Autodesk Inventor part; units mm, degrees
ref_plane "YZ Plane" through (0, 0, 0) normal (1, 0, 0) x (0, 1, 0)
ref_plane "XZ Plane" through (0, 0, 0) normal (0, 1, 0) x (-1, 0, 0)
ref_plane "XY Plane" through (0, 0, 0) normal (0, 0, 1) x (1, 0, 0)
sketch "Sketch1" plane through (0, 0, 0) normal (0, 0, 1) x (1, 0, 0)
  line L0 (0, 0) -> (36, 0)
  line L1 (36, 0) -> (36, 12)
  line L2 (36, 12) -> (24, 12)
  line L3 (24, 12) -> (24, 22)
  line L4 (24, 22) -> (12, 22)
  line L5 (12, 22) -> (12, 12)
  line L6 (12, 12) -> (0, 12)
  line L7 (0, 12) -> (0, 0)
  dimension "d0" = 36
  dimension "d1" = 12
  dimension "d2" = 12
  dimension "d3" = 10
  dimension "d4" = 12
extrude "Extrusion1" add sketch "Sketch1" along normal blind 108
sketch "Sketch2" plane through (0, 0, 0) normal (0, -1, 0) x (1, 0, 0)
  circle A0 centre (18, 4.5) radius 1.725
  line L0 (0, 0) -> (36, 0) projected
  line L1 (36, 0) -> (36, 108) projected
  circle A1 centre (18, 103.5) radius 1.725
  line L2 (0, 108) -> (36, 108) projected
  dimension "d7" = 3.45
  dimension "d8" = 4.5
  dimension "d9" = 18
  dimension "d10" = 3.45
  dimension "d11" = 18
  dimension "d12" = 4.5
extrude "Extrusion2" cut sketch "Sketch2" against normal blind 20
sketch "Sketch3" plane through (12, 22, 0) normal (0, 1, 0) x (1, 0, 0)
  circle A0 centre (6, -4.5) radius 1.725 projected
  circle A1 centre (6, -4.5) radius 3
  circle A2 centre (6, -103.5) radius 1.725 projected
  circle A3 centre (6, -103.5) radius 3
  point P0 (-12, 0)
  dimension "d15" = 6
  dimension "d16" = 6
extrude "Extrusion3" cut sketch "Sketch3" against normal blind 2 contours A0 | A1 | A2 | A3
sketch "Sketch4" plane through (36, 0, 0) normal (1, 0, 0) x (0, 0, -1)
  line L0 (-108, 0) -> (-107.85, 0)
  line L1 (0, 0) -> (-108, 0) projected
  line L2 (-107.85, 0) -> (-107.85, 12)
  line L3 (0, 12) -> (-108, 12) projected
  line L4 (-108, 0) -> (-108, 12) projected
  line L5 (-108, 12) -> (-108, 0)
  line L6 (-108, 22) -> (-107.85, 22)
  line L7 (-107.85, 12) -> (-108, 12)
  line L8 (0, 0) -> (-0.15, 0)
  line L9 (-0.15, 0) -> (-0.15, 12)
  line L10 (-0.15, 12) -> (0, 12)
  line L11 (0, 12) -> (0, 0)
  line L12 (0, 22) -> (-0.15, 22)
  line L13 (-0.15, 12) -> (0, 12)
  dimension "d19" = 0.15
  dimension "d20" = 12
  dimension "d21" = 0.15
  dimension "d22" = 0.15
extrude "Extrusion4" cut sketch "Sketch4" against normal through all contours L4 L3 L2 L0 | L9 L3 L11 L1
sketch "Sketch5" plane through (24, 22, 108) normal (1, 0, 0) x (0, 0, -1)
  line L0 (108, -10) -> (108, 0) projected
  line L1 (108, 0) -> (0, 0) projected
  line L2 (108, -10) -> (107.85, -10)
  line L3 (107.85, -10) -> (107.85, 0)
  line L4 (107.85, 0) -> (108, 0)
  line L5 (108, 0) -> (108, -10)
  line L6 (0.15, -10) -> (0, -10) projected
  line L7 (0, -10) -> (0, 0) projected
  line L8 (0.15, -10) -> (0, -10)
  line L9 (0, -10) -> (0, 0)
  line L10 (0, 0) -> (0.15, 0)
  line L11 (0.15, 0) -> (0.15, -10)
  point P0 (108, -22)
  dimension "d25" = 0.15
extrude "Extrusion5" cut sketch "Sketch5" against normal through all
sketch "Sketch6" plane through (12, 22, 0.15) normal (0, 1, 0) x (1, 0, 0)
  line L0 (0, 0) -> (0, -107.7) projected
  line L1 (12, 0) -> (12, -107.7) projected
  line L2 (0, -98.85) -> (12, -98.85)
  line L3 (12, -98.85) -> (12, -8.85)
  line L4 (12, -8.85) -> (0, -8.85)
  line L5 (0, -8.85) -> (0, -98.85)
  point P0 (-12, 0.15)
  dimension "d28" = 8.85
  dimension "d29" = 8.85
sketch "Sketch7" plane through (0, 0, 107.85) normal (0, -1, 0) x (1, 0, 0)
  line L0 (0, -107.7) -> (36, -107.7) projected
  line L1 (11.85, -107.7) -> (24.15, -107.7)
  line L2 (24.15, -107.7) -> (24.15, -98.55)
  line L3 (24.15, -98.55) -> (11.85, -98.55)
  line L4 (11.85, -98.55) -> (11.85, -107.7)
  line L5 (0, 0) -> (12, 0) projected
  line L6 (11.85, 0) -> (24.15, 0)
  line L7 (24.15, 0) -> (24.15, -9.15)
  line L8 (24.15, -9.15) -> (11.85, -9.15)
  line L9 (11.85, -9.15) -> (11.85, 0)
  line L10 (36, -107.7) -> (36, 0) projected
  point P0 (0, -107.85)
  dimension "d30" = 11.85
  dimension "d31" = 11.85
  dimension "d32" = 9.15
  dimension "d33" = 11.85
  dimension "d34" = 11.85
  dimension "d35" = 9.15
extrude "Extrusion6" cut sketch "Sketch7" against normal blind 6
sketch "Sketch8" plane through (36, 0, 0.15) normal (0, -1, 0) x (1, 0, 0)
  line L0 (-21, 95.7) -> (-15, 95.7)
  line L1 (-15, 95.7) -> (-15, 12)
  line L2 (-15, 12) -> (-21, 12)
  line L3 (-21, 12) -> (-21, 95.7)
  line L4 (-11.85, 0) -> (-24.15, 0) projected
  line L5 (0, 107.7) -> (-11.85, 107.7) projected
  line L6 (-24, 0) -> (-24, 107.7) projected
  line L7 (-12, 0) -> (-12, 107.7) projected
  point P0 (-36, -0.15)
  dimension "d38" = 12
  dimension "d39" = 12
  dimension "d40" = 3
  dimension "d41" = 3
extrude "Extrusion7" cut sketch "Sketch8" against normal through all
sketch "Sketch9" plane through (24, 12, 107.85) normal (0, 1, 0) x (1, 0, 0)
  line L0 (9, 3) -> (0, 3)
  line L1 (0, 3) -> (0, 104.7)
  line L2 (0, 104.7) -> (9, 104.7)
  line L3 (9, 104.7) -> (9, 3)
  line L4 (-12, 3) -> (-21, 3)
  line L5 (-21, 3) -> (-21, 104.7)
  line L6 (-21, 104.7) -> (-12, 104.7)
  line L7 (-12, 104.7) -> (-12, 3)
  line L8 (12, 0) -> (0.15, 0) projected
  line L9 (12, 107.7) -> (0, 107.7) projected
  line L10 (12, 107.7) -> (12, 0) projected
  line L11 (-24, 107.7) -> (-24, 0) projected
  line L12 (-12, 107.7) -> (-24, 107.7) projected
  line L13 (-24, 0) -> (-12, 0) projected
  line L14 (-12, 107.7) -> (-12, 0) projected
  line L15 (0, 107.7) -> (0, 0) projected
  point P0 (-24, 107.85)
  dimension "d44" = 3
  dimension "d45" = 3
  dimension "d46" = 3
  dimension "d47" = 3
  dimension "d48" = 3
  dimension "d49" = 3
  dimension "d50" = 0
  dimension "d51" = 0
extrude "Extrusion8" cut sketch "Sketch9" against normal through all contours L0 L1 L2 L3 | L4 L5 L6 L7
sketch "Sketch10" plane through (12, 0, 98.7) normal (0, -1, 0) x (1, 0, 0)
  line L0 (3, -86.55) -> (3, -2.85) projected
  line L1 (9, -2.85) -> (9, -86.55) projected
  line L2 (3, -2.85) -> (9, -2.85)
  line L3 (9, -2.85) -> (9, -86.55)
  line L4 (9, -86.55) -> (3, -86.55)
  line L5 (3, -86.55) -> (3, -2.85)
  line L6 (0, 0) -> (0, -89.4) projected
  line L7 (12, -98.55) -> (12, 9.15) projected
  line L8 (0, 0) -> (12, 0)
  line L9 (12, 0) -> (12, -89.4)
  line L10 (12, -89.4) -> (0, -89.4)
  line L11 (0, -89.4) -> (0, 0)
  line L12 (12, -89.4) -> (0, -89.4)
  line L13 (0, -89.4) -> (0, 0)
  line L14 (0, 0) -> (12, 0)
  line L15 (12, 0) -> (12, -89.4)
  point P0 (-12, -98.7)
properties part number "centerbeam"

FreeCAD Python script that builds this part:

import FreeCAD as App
import Part
import Sketcher
from FreeCAD import Vector


def add_polygon(sketch, points):
    """Adds a closed chain of lines whose ends are joined by coincident constraints."""
    first, n = sketch.GeometryCount, len(points)
    for a, b in zip(points, points[1:] + points[:1]):
        sketch.addGeometry(Part.LineSegment(App.Vector(*a, 0), App.Vector(*b, 0)), False)
    for i in range(n):
        sketch.addConstraint(Sketcher.Constraint("Coincident", first + i, 2, first + (i + 1) % n, 1))

doc = App.newDocument("Part")
body = doc.addObject("PartDesign::Body", "Body")

# Sketch on XY plane
sketch1 = doc.addObject("Sketcher::SketchObject", "Sketch")
body.addObject(sketch1)
sketch1.AttachmentSupport = (doc.XY_Plane, [""])
sketch1.MapMode = "FlatFace"
add_polygon(sketch1, [(0, 12), (0, 0), (36, 0), (36, 12), (24, 12), (24, 22), (12, 22), (12, 12)])  # lines 0-7
sketch1.addConstraint(Sketcher.Constraint("Vertical", 0))
sketch1.addConstraint(Sketcher.Constraint("Horizontal", 1))
sketch1.addConstraint(Sketcher.Constraint("Vertical", 2))
sketch1.addConstraint(Sketcher.Constraint("Horizontal", 3))
sketch1.addConstraint(Sketcher.Constraint("Vertical", 4))
sketch1.addConstraint(Sketcher.Constraint("Horizontal", 5))
sketch1.addConstraint(Sketcher.Constraint("Vertical", 6))
sketch1.addConstraint(Sketcher.Constraint("Horizontal", 7))
sketch1.addConstraint(Sketcher.Constraint("Coincident", 0, 2, -1, 1))
sketch1.addConstraint(Sketcher.Constraint("Horizontal", 3, 2, 6, 2))
sketch1.addConstraint(Sketcher.Constraint("Equal", 3, 5))
sketch1.addConstraint(Sketcher.Constraint("Equal", 5, 7))
sketch1.addConstraint(Sketcher.Constraint("Equal", 7, 0))
sketch1.addConstraint(Sketcher.Constraint("DistanceX", 1, 1, 1, 2, 36.0))
sketch1.addConstraint(Sketcher.Constraint("DistanceY", 4, 1, 4, 2, 10.0))
pad1 = doc.addObject("PartDesign::Pad", "Pad")
body.addObject(pad1)
pad1.Profile = sketch1
pad1.Length = 108

# Sketch on XZ plane
sketch2 = doc.addObject("Sketcher::SketchObject", "Sketch001")
body.addObject(sketch2)
sketch2.AttachmentSupport = (doc.XZ_Plane, [""])
sketch2.MapMode = "FlatFace"
sketch2.addGeometry(Part.Circle(Vector(18, 4.5, 0), Vector(0, 0, 1), 1.725), False)
sketch2.addGeometry(Part.Circle(Vector(18, 103.5, 0), Vector(0, 0, 1), 1.725), False)
sketch2.addConstraint(Sketcher.Constraint("Equal", 0, 1))
sketch2.addConstraint(Sketcher.Constraint("Vertical", 0, 3, 1, 3))
sketch2.addConstraint(Sketcher.Constraint("Diameter", 0, 3.45))
sketch2.addConstraint(Sketcher.Constraint("DistanceX", -1, 1, 0, 3, 18.0))
sketch2.addConstraint(Sketcher.Constraint("DistanceY", -1, 1, 0, 3, 4.5))
sketch2.addConstraint(Sketcher.Constraint("DistanceY", 0, 3, 1, 3, 99.0))
pocket1 = doc.addObject("PartDesign::Pocket", "Pocket")
body.addObject(pocket1)
pocket1.Profile = sketch2
pocket1.Length = 20

# Sketch on XZ plane
sketch3 = doc.addObject("Sketcher::SketchObject", "Sketch002")
body.addObject(sketch3)
sketch3.AttachmentSupport = (doc.XZ_Plane, [""])
sketch3.MapMode = "FlatFace"
sketch3.AttachmentOffset = App.Placement(Vector(0, 0, -22), App.Rotation())
sketch3.addGeometry(Part.Circle(Vector(18, 4.5, 0), Vector(0, 0, 1), 3), False)
sketch3.addGeometry(Part.Circle(Vector(18, 103.5, 0), Vector(0, 0, 1), 3), False)
sketch3.addConstraint(Sketcher.Constraint("Equal", 0, 1))
sketch3.addConstraint(Sketcher.Constraint("Vertical", 0, 3, 1, 3))
sketch3.addConstraint(Sketcher.Constraint("Diameter", 0, 6.0))
sketch3.addConstraint(Sketcher.Constraint("DistanceX", -1, 1, 0, 3, 18.0))
sketch3.addConstraint(Sketcher.Constraint("DistanceY", 0, 3, 1, 3, 99.0))
sketch3.addConstraint(Sketcher.Constraint("DistanceY", -1, 1, 0, 3, 4.5))
pocket2 = doc.addObject("PartDesign::Pocket", "Pocket001")
body.addObject(pocket2)
pocket2.Profile = sketch3
pocket2.Length = 2
pocket2.Reversed = True

# Sketch on YZ plane
sketch4 = doc.addObject("Sketcher::SketchObject", "Sketch003")
body.addObject(sketch4)
sketch4.AttachmentSupport = (doc.YZ_Plane, [""])
sketch4.MapMode = "FlatFace"
sketch4.AttachmentOffset = App.Placement(Vector(0, 0, 36), App.Rotation())
add_polygon(sketch4, [(12, 108), (0, 108), (0, 107.85), (12, 107.85)])  # lines 0-3
add_polygon(sketch4, [(12, 0.15), (0, 0.15), (0, 0), (12, 0)])  # lines 4-7
sketch4.addConstraint(Sketcher.Constraint("Horizontal", 0))
sketch4.addConstraint(Sketcher.Constraint("Vertical", 1))
sketch4.addConstraint(Sketcher.Constraint("Horizontal", 2))
sketch4.addConstraint(Sketcher.Constraint("Vertical", 3))
sketch4.addConstraint(Sketcher.Constraint("Horizontal", 4))
sketch4.addConstraint(Sketcher.Constraint("Vertical", 5))
sketch4.addConstraint(Sketcher.Constraint("Horizontal", 6))
sketch4.addConstraint(Sketcher.Constraint("Vertical", 7))
sketch4.addConstraint(Sketcher.Constraint("Coincident", 5, 2, -1, 1))
sketch4.addConstraint(Sketcher.Constraint("PointOnObject", 0, 2, -2))
sketch4.addConstraint(Sketcher.Constraint("Vertical", 3, 2, 6, 2))
sketch4.addConstraint(Sketcher.Constraint("Equal", 3, 5))
sketch4.addConstraint(Sketcher.Constraint("DistanceX", 0, 2, 0, 1, 12.0))
sketch4.addConstraint(Sketcher.Constraint("DistanceY", 1, 2, 1, 1, 0.15))
sketch4.addConstraint(Sketcher.Constraint("DistanceY", -1, 1, 0, 2, 108.0))
pocket3 = doc.addObject("PartDesign::Pocket", "Pocket002")
body.addObject(pocket3)
pocket3.Profile = sketch4
pocket3.Type = "ThroughAll"

# Sketch on YZ plane
sketch5 = doc.addObject("Sketcher::SketchObject", "Sketch004")
body.addObject(sketch5)
sketch5.AttachmentSupport = (doc.YZ_Plane, [""])
sketch5.MapMode = "FlatFace"
sketch5.AttachmentOffset = App.Placement(Vector(0, 0, 24), App.Rotation())
add_polygon(sketch5, [(12, 0.15), (12, 0), (22, 0), (22, 0.15)])  # lines 0-3
add_polygon(sketch5, [(12, 107.85), (22, 107.85), (22, 108), (12, 108)])  # lines 4-7
sketch5.addConstraint(Sketcher.Constraint("Vertical", 0))
sketch5.addConstraint(Sketcher.Constraint("Horizontal", 1))
sketch5.addConstraint(Sketcher.Constraint("Vertical", 2))
sketch5.addConstraint(Sketcher.Constraint("Horizontal", 3))
sketch5.addConstraint(Sketcher.Constraint("Horizontal", 4))
sketch5.addConstraint(Sketcher.Constraint("Vertical", 5))
sketch5.addConstraint(Sketcher.Constraint("Horizontal", 6))
sketch5.addConstraint(Sketcher.Constraint("Vertical", 7))
sketch5.addConstraint(Sketcher.Constraint("PointOnObject", 0, 2, -1))
sketch5.addConstraint(Sketcher.Constraint("Vertical", 2, 2, 4, 2))
sketch5.addConstraint(Sketcher.Constraint("Vertical", 3, 2, 6, 2))
sketch5.addConstraint(Sketcher.Constraint("Equal", 2, 5))
sketch5.addConstraint(Sketcher.Constraint("DistanceY", 0, 2, 0, 1, 0.15))
sketch5.addConstraint(Sketcher.Constraint("DistanceX", 1, 1, 1, 2, 10.0))
sketch5.addConstraint(Sketcher.Constraint("DistanceX", -1, 1, 0, 2, 12.0))
sketch5.addConstraint(Sketcher.Constraint("DistanceY", -1, 1, 5, 2, 108.0))
pocket4 = doc.addObject("PartDesign::Pocket", "Pocket003")
body.addObject(pocket4)
pocket4.Profile = sketch5
pocket4.Type = "ThroughAll"

# Sketch on XZ plane
sketch6 = doc.addObject("Sketcher::SketchObject", "Sketch005")
body.addObject(sketch6)
sketch6.AttachmentSupport = (doc.XZ_Plane, [""])
sketch6.MapMode = "FlatFace"
add_polygon(sketch6, [(11.85, 9.3), (11.85, 0.15), (24.15, 0.15), (24.15, 9.3)])  # lines 0-3
add_polygon(sketch6, [(24.15, 107.85), (11.85, 107.85), (11.85, 98.7), (24.15, 98.7)])  # lines 4-7
sketch6.addConstraint(Sketcher.Constraint("Vertical", 0))
sketch6.addConstraint(Sketcher.Constraint("Horizontal", 1))
sketch6.addConstraint(Sketcher.Constraint("Vertical", 2))
sketch6.addConstraint(Sketcher.Constraint("Horizontal", 3))
sketch6.addConstraint(Sketcher.Constraint("Horizontal", 4))
sketch6.addConstraint(Sketcher.Constraint("Vertical", 5))
sketch6.addConstraint(Sketcher.Constraint("Horizontal", 6))
sketch6.addConstraint(Sketcher.Constraint("Vertical", 7))
sketch6.addConstraint(Sketcher.Constraint("Vertical", 3, 2, 4, 2))
sketch6.addConstraint(Sketcher.Constraint("Vertical", 2, 2, 6, 2))
sketch6.addConstraint(Sketcher.Constraint("Equal", 2, 5))
sketch6.addConstraint(Sketcher.Constraint("DistanceY", 0, 2, 0, 1, 9.15))
sketch6.addConstraint(Sketcher.Constraint("DistanceX", -1, 1, 0, 2, 11.85))
sketch6.addConstraint(Sketcher.Constraint("DistanceX", 1, 1, 1, 2, 12.3))
sketch6.addConstraint(Sketcher.Constraint("DistanceY", -1, 1, 2, 2, 9.3))
sketch6.addConstraint(Sketcher.Constraint("DistanceY", -1, 1, 5, 2, 98.7))
pocket5 = doc.addObject("PartDesign::Pocket", "Pocket004")
body.addObject(pocket5)
pocket5.Profile = sketch6
pocket5.Length = 6

# Sketch on XZ plane
sketch7 = doc.addObject("Sketcher::SketchObject", "Sketch006")
body.addObject(sketch7)
sketch7.AttachmentSupport = (doc.XZ_Plane, [""])
sketch7.MapMode = "FlatFace"
add_polygon(sketch7, [(21, 95.85), (15, 95.85), (15, 12.15), (21, 12.15)])  # lines 0-3
sketch7.addConstraint(Sketcher.Constraint("Horizontal", 0))
sketch7.addConstraint(Sketcher.Constraint("Vertical", 1))
sketch7.addConstraint(Sketcher.Constraint("Horizontal", 2))
sketch7.addConstraint(Sketcher.Constraint("Vertical", 3))
sketch7.addConstraint(Sketcher.Constraint("DistanceX", 0, 2, 0, 1, 6.0))
sketch7.addConstraint(Sketcher.Constraint("DistanceY", 1, 2, 1, 1, 83.7))
sketch7.addConstraint(Sketcher.Constraint("DistanceX", -1, 1, 0, 2, 15.0))
sketch7.addConstraint(Sketcher.Constraint("DistanceY", -1, 1, 0, 2, 95.85))
pocket6 = doc.addObject("PartDesign::Pocket", "Pocket005")
body.addObject(pocket6)
pocket6.Profile = sketch7
pocket6.Type = "ThroughAll"

# Sketch on XZ plane
sketch8 = doc.addObject("Sketcher::SketchObject", "Sketch007")
body.addObject(sketch8)
sketch8.AttachmentSupport = (doc.XZ_Plane, [""])
sketch8.MapMode = "FlatFace"
sketch8.AttachmentOffset = App.Placement(Vector(0, 0, -12), App.Rotation())
add_polygon(sketch8, [(24, 104.85), (33, 104.85), (33, 3.15), (24, 3.15)])  # lines 0-3
add_polygon(sketch8, [(3, 104.85), (12, 104.85), (12, 3.15), (3, 3.15)])  # lines 4-7
sketch8.addConstraint(Sketcher.Constraint("Horizontal", 0))
sketch8.addConstraint(Sketcher.Constraint("Vertical", 1))
sketch8.addConstraint(Sketcher.Constraint("Horizontal", 2))
sketch8.addConstraint(Sketcher.Constraint("Vertical", 3))
sketch8.addConstraint(Sketcher.Constraint("Horizontal", 4))
sketch8.addConstraint(Sketcher.Constraint("Vertical", 5))
sketch8.addConstraint(Sketcher.Constraint("Horizontal", 6))
sketch8.addConstraint(Sketcher.Constraint("Vertical", 7))
sketch8.addConstraint(Sketcher.Constraint("Horizontal", 3, 2, 4, 2))
sketch8.addConstraint(Sketcher.Constraint("Horizontal", 2, 2, 5, 2))
sketch8.addConstraint(Sketcher.Constraint("Equal", 2, 4))
sketch8.addConstraint(Sketcher.Constraint("DistanceX", -1, 1, 6, 2, 3.0))
sketch8.addConstraint(Sketcher.Constraint("DistanceX", 0, 1, 0, 2, 9.0))
sketch8.addConstraint(Sketcher.Constraint("DistanceY", 1, 2, 1, 1, 101.7))
sketch8.addConstraint(Sketcher.Constraint("DistanceX", -1, 1, 0, 2, 33.0))
sketch8.addConstraint(Sketcher.Constraint("DistanceY", -1, 1, 0, 2, 104.85))
pocket7 = doc.addObject("PartDesign::Pocket", "Pocket006")
body.addObject(pocket7)
pocket7.Profile = sketch8
pocket7.Type = "ThroughAll"
pocket7.Reversed = True

doc.recompute()
